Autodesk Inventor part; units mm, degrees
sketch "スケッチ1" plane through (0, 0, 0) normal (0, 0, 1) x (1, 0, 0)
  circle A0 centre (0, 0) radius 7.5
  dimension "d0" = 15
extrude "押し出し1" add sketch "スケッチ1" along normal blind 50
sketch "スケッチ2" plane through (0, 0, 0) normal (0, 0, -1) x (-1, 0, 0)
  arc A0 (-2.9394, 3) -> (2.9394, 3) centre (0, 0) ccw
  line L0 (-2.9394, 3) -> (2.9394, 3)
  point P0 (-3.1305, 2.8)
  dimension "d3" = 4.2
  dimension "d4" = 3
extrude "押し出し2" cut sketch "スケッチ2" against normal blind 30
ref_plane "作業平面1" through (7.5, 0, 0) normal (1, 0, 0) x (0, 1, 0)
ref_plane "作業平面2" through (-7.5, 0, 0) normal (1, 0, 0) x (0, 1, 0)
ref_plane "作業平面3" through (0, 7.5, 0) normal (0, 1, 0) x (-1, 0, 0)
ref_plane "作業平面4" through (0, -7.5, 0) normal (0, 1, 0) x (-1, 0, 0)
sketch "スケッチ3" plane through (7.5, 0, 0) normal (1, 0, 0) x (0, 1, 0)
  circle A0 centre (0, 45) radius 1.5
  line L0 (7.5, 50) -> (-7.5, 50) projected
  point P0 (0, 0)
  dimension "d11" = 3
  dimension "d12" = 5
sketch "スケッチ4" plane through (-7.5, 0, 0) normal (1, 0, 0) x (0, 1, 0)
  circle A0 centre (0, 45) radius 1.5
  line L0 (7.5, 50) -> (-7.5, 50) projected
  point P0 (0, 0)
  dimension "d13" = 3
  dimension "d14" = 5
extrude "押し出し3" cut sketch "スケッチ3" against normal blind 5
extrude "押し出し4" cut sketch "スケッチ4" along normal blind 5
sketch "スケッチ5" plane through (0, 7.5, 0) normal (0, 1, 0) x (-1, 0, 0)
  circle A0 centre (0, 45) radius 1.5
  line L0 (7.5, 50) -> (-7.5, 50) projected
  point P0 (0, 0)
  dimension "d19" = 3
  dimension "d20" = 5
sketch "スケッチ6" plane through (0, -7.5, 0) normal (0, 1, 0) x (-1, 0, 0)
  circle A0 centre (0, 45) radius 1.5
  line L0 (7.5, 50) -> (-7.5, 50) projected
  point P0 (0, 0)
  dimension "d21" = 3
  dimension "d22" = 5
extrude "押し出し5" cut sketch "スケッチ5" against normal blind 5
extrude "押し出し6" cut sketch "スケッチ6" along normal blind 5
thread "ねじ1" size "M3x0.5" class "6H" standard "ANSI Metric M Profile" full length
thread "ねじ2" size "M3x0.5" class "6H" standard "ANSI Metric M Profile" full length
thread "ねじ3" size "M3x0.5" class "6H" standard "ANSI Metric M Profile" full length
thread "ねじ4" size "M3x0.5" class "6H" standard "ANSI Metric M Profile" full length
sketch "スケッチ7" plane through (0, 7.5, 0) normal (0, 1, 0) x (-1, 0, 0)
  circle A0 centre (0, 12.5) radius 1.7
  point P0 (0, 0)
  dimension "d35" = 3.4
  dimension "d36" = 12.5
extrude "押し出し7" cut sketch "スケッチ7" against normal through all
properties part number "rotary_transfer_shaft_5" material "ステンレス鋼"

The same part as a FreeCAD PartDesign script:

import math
import FreeCAD as App
import Part
import Sketcher

V = App.Vector

doc = App.newDocument("Part")
body = doc.addObject("PartDesign::Body", "Body")

# Sketch on XY plane
sketch1 = body.newObject("Sketcher::SketchObject", "Sketch")
sketch1.AttachmentSupport = (doc.getObject("XY_Plane"), [""])
sketch1.MapMode = "FlatFace"
sketch1.addGeometry(Part.Circle(V(0, 0, 0), V(0, 0, 1), 8), False)
sketch1.addConstraint([
    Sketcher.Constraint("Coincident", 0, 3, -1, 1),
    Sketcher.Constraint("Diameter", 0, 15.0),
])
pad1 = body.newObject("PartDesign::Pad", "Pad")
pad1.Profile = sketch1
pad1.Length = 50

# Sketch on XY plane
sketch2 = body.newObject("Sketcher::SketchObject", "Sketch001")
sketch2.AttachmentSupport = (doc.getObject("XY_Plane"), [""])
sketch2.MapMode = "FlatFace"
sketch2.addGeometry([
    Part.LineSegment(V(-2.9, 3, 0), V(2.9, 3, 0)),
    Part.ArcOfCircle(Part.Circle(V(0, 0, 0), V(0, 0, 1), 4.2), math.radians(134), math.radians(406)),
], False)
sketch2.addConstraint([
    Sketcher.Constraint("Coincident", 0, 1, 1, 1),
    Sketcher.Constraint("Coincident", 1, 2, 0, 2),
    Sketcher.Constraint("Horizontal", 0),
    Sketcher.Constraint("Coincident", 1, 3, -1, 1),
    Sketcher.Constraint("Radius", 1, 4.2),
    Sketcher.Constraint("DistanceY", -1, 1, 0, 1, 3.0),
])
pocket1 = body.newObject("PartDesign::Pocket", "Pocket")
pocket1.Profile = sketch2
pocket1.Length = 30
pocket1.Reversed = True

# Sketch on YZ plane
sketch3 = body.newObject("Sketcher::SketchObject", "Sketch002")
sketch3.AttachmentSupport = (doc.getObject("YZ_Plane"), [""])
sketch3.MapMode = "FlatFace"
sketch3.AttachmentOffset = App.Placement(V(0, 0, 7.5), App.Rotation())
sketch3.addGeometry(Part.Circle(V(0, 45, 0), V(0, 0, 1), 1.5), False)
sketch3.addConstraint([
    Sketcher.Constraint("PointOnObject", 0, 3, -2),
    Sketcher.Constraint("Diameter", 0, 3.0),
    Sketcher.Constraint("DistanceY", -1, 1, 0, 3, 45.0),
])
pocket2 = body.newObject("PartDesign::Pocket", "Pocket001")
pocket2.Profile = sketch3
pocket2.Length = 5

# Sketch on YZ plane
sketch4 = body.newObject("Sketcher::SketchObject", "Sketch003")
sketch4.AttachmentSupport = (doc.getObject("YZ_Plane"), [""])
sketch4.MapMode = "FlatFace"
sketch4.AttachmentOffset = App.Placement(V(0, 0, -7.5), App.Rotation())
sketch4.addGeometry(Part.Circle(V(0, 45, 0), V(0, 0, 1), 1.5), False)
sketch4.addConstraint([
    Sketcher.Constraint("PointOnObject", 0, 3, -2),
    Sketcher.Constraint("Diameter", 0, 3.0),
    Sketcher.Constraint("DistanceY", -1, 1, 0, 3, 45.0),
])
pocket3 = body.newObject("PartDesign::Pocket", "Pocket002")
pocket3.Profile = sketch4
pocket3.Length = 5
pocket3.Reversed = True

# Sketch on XZ plane
sketch5 = body.newObject("Sketcher::SketchObject", "Sketch004")
sketch5.AttachmentSupport = (doc.getObject("XZ_Plane"), [""])
sketch5.MapMode = "FlatFace"
sketch5.AttachmentOffset = App.Placement(V(0, 0, -7.5), App.Rotation())
sketch5.addGeometry(Part.Circle(V(0, 45, 0), V(0, 0, 1), 1.5), False)
sketch5.addConstraint([
    Sketcher.Constraint("PointOnObject", 0, 3, -2),
    Sketcher.Constraint("Diameter", 0, 3.0),
    Sketcher.Constraint("DistanceY", -1, 1, 0, 3, 45.0),
])
pocket4 = body.newObject("PartDesign::Pocket", "Pocket003")
pocket4.Profile = sketch5
pocket4.Length = 5
pocket4.Reversed = True

# Sketch on XZ plane
sketch6 = body.newObject("Sketcher::SketchObject", "Sketch005")
sketch6.AttachmentSupport = (doc.getObject("XZ_Plane"), [""])
sketch6.MapMode = "FlatFace"
sketch6.AttachmentOffset = App.Placement(V(0, 0, 7.5), App.Rotation())
sketch6.addGeometry(Part.Circle(V(0, 45, 0), V(0, 0, 1), 1.5), False)
sketch6.addConstraint([
    Sketcher.Constraint("PointOnObject", 0, 3, -2),
    Sketcher.Constraint("Diameter", 0, 3.0),
    Sketcher.Constraint("DistanceY", -1, 1, 0, 3, 45.0),
])
pocket5 = body.newObject("PartDesign::Pocket", "Pocket004")
pocket5.Profile = sketch6
pocket5.Length = 5

# Sketch on XZ plane
sketch7 = body.newObject("Sketcher::SketchObject", "Sketch006")
sketch7.AttachmentSupport = (doc.getObject("XZ_Plane"), [""])
sketch7.MapMode = "FlatFace"
sketch7.AttachmentOffset = App.Placement(V(0, 0, -7.5), App.Rotation())
sketch7.addGeometry(Part.Circle(V(0, 12.5, 0), V(0, 0, 1), 1.7), False)
sketch7.addConstraint([
    Sketcher.Constraint("PointOnObject", 0, 3, -2),
    Sketcher.Constraint("Diameter", 0, 3.4),
    Sketcher.Constraint("DistanceY", -1, 1, 0, 3, 12.5),
])
pocket6 = body.newObject("PartDesign::Pocket", "Pocket005")
pocket6.Profile = sketch7
pocket6.Type = "ThroughAll"
pocket6.Reversed = True

doc.recompute()
